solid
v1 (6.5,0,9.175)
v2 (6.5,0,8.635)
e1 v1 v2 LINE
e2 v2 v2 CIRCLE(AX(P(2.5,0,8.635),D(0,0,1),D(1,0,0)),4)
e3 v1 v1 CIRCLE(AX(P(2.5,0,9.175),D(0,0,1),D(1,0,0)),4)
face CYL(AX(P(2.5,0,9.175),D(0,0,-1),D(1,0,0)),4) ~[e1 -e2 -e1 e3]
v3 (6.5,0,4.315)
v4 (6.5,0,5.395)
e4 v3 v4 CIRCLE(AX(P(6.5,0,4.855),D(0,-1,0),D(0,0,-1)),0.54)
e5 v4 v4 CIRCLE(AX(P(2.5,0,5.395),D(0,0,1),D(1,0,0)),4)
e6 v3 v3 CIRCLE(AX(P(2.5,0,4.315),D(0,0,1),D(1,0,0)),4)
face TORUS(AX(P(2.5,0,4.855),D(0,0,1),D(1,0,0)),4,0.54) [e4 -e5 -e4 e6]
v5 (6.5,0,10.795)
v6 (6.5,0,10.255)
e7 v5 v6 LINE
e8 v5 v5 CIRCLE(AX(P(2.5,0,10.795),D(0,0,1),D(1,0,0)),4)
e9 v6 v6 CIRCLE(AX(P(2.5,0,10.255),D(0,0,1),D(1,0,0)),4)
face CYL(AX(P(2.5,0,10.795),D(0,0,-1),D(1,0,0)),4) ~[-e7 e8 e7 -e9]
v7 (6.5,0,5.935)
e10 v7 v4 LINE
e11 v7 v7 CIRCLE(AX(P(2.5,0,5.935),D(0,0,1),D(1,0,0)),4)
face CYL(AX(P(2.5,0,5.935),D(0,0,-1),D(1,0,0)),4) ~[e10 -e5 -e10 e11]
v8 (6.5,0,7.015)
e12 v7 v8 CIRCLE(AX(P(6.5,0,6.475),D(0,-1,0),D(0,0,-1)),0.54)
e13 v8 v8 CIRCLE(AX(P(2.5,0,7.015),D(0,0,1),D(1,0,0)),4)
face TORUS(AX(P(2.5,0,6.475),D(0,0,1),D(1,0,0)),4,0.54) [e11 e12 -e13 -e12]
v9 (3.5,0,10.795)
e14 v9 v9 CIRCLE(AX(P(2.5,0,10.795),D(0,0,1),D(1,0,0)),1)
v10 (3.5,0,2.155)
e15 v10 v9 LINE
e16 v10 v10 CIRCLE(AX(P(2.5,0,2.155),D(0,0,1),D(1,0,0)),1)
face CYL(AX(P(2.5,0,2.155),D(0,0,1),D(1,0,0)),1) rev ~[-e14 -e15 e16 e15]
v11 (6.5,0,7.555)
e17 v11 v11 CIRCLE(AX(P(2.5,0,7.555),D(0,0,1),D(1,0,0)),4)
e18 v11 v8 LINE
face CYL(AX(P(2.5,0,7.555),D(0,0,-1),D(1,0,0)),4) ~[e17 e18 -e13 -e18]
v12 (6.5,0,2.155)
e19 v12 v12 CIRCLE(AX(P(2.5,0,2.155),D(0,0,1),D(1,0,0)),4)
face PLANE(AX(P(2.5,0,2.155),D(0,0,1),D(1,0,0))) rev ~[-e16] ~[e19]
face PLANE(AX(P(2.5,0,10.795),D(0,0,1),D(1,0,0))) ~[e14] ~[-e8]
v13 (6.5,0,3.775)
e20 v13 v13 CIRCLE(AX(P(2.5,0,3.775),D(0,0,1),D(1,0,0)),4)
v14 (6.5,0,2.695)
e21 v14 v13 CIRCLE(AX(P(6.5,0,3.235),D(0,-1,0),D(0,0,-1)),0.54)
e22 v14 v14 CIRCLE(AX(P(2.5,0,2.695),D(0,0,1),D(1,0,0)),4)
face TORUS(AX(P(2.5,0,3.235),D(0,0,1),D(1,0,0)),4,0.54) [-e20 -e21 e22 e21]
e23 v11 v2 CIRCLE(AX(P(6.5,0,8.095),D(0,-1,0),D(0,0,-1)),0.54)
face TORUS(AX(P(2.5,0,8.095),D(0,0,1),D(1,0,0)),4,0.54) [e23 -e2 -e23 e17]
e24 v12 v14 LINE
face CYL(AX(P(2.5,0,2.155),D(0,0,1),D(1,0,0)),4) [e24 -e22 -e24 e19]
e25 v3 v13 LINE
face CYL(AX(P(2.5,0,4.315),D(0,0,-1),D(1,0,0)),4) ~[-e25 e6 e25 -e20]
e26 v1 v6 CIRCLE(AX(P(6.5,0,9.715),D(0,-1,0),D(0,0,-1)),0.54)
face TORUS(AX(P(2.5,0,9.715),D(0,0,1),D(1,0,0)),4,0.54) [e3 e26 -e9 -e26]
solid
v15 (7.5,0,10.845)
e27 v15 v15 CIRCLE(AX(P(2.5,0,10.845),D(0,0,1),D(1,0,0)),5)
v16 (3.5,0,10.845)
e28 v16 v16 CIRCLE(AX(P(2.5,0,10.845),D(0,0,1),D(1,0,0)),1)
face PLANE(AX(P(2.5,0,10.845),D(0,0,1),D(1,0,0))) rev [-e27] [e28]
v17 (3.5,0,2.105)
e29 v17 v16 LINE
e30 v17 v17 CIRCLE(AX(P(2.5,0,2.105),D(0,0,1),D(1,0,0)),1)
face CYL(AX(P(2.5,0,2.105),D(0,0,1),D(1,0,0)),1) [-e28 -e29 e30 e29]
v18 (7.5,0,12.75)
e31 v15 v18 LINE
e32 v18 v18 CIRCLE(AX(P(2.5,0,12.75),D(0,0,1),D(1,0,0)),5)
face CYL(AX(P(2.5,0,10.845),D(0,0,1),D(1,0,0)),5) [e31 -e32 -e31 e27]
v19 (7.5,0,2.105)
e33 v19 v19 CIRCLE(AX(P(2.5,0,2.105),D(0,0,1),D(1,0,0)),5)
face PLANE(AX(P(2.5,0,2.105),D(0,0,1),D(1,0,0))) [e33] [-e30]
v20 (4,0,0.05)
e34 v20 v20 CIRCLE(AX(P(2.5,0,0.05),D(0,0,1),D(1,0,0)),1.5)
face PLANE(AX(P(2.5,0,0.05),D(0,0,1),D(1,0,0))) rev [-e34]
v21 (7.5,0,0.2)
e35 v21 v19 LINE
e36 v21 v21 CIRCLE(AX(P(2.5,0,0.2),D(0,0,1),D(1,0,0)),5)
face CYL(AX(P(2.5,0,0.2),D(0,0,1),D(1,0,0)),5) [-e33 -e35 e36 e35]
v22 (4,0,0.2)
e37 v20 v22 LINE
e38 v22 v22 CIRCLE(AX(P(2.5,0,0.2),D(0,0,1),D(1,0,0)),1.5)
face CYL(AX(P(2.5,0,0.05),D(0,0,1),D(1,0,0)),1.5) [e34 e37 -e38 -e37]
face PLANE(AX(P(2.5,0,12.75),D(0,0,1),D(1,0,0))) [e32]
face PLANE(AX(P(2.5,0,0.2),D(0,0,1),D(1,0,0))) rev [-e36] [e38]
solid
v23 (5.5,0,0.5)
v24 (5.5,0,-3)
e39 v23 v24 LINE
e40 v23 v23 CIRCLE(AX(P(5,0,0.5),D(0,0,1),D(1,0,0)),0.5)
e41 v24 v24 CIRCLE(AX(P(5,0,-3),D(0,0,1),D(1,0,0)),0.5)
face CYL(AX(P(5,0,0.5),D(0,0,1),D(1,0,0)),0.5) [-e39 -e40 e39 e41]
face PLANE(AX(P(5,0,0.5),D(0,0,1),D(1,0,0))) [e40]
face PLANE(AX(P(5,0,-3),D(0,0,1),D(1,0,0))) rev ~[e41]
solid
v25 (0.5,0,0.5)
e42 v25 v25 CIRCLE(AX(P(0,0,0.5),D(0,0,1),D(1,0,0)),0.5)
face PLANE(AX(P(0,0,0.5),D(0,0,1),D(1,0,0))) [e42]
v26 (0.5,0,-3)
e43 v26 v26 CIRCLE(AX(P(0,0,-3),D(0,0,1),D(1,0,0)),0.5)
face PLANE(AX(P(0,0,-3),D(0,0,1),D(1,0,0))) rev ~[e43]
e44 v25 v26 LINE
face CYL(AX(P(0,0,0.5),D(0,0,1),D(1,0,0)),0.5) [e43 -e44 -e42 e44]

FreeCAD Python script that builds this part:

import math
import FreeCAD as App
import Part
import Sketcher

V = App.Vector
Q = App.Units.Quantity


def add_polygon(sketch, points):
    """Adds a closed chain of lines whose ends are joined by coincident constraints."""
    first, n = sketch.GeometryCount, len(points)
    for a, b in zip(points, points[1:] + points[:1]):
        sketch.addGeometry(Part.LineSegment(App.Vector(*a, 0), App.Vector(*b, 0)), False)
    for i in range(n):
        sketch.addConstraint(Sketcher.Constraint("Coincident", first + i, 2, first + (i + 1) % n, 1))

doc = App.newDocument("Part")
params = doc.addObject("Spreadsheet::Sheet", "Params")
for row, (alias, value) in enumerate([
    ("sketch1_diameter", "1 mm"),
    ("pad1_length", "3.5 mm"),
    ("sketch2_width", "4 mm"),
    ("sketch2_width2", "5 mm"),
    ("sketch2_width3", "1.5 mm"),
    ("sketch2_height", "12.7 mm"),
    ("sketch2_height2", "0.15 mm"),
    ("revolution_angle", "360 deg"),
    ("sketch3_width", "3 mm"),
    ("sketch3_radius", "0.54 mm"),
    ("sketch3_height", "0.54 mm"),
    ("revolution2_angle", "360 deg"),
], start=1):
    params.set(f"A{row}", alias)
    params.set(f"B{row}", "=" + value)
    params.setAlias(f"B{row}", alias)

body = doc.addObject("PartDesign::Body", "Body")
body.AllowCompound = True

sketch1 = doc.addObject("Sketcher::SketchObject", "Sketch")
body.addObject(sketch1)
sketch1.AttachmentSupport = (doc.XY_Plane, [""])
sketch1.MapMode = "FlatFace"
sketch1.AttachmentOffset = App.Placement(V(0, 0, 0.5), App.Rotation())
sketch1.addGeometry(Part.Circle(V(0, 0, 0), V(0, 0, 1), 0.5), False)
sketch1.addGeometry(Part.Circle(V(5, 0, 0), V(0, 0, 1), 0.5), False)
sketch1.addConstraint(Sketcher.Constraint("Coincident", 0, 3, -1, 1))
sketch1.addConstraint(Sketcher.Constraint("Equal", 0, 1))
sketch1.addConstraint(Sketcher.Constraint("PointOnObject", 1, 3, -1))
sketch1.addConstraint(Sketcher.Constraint("Diameter", 0, Q("1 mm")))
sketch1.addConstraint(Sketcher.Constraint("DistanceX", -1, 1, 1, 3, Q("5 mm")))
sketch1.setExpression("Constraints[3]", "Params.sketch1_diameter")
pad1 = doc.addObject("PartDesign::Pad", "Pad")
body.addObject(pad1)
pad1.Profile = sketch1
pad1.setExpression("Length", "Params.pad1_length")
pad1.Reversed = True
body2 = doc.addObject("PartDesign::Body", "Body001")

sketch2 = doc.addObject("Sketcher::SketchObject", "Sketch001")
body2.addObject(sketch2)
sketch2.AttachmentSupport = (doc.getObject("XZ_Plane001"), [""])
sketch2.MapMode = "FlatFace"
add_polygon(sketch2, [(2.5, 0.05), (4, 0.05), (4, 0.2), (7.5, 0.2), (7.5, 2.1), (3.5, 2.1), (3.5, 10.85), (7.5, 10.85), (7.5, 12.75), (2.5, 12.75)])
sketch2.addGeometry(Part.LineSegment(V(2.5, 0.05, 0), V(2.5, 12.75, 0)), True)
sketch2.addConstraint(Sketcher.Constraint("Horizontal", 0))
sketch2.addConstraint(Sketcher.Constraint("Vertical", 1))
sketch2.addConstraint(Sketcher.Constraint("Horizontal", 2))
sketch2.addConstraint(Sketcher.Constraint("Vertical", 3))
sketch2.addConstraint(Sketcher.Constraint("Horizontal", 4))
sketch2.addConstraint(Sketcher.Constraint("Vertical", 5))
sketch2.addConstraint(Sketcher.Constraint("Horizontal", 6))
sketch2.addConstraint(Sketcher.Constraint("Vertical", 7))
sketch2.addConstraint(Sketcher.Constraint("Horizontal", 8))
sketch2.addConstraint(Sketcher.Constraint("Vertical", 9))
sketch2.addConstraint(Sketcher.Constraint("Vertical", 10))
sketch2.addConstraint(Sketcher.Constraint("Coincident", 10, 1, 9, 2))
sketch2.addConstraint(Sketcher.Constraint("Horizontal", 7, 2, 10, 2))
sketch2.addConstraint(Sketcher.Constraint("Vertical", 3, 2, 6, 2))
sketch2.addConstraint(Sketcher.Constraint("Equal", 3, 7))
sketch2.addConstraint(Sketcher.Constraint("DistanceX", 4, 2, 4, 1, Q("4 mm")))
sketch2.addConstraint(Sketcher.Constraint("DistanceX", 8, 2, 8, 1, Q("5 mm")))
sketch2.addConstraint(Sketcher.Constraint("DistanceX", 0, 1, 0, 2, Q("1.5 mm")))
sketch2.addConstraint(Sketcher.Constraint("DistanceY", 9, 2, 9, 1, Q("12.7 mm")))
sketch2.addConstraint(Sketcher.Constraint("DistanceX", -1, 1, 0, 2, Q("4 mm")))
sketch2.addConstraint(Sketcher.Constraint("DistanceY", 1, 1, 1, 2, Q("0.15 mm")))
sketch2.addConstraint(Sketcher.Constraint("DistanceY", 5, 1, 5, 2, Q("8.74 mm")))
sketch2.addConstraint(Sketcher.Constraint("DistanceY", -1, 1, 1, 2, Q("0.2 mm")))
sketch2.setExpression("Constraints[25]", "Params.sketch2_width")
sketch2.setExpression("Constraints[26]", "Params.sketch2_width2")
sketch2.setExpression("Constraints[27]", "Params.sketch2_width3")
sketch2.setExpression("Constraints[28]", "Params.sketch2_height")
sketch2.setExpression("Constraints[30]", "Params.sketch2_height2")
revolution = doc.addObject("PartDesign::Revolution", "Revolution")
body2.addObject(revolution)
revolution.Profile = sketch2
revolution.ReferenceAxis = (sketch2, ["Axis0"])
revolution.setExpression("Angle", "Params.revolution_angle")
body3 = doc.addObject("PartDesign::Body", "Body002")

sketch3 = doc.addObject("Sketcher::SketchObject", "Sketch002")
body3.addObject(sketch3)
sketch3.AttachmentSupport = (doc.getObject("XZ_Plane002"), [""])
sketch3.MapMode = "FlatFace"
sketch3.addGeometry(Part.LineSegment(V(3.5, 2.2, 0), V(6.5, 2.2, 0)), False)
sketch3.addGeometry(Part.LineSegment(V(6.5, 2.2, 0), V(6.5, 2.7, 0)), False)
sketch3.addGeometry(Part.ArcOfCircle(Part.Circle(V(6.5, 3.2, 0), V(0, 0, 1), 0.5), math.radians(-90), math.radians(90)), False)
sketch3.addGeometry(Part.LineSegment(V(6.5, 3.8, 0), V(6.5, 4.3, 0)), False)
sketch3.addGeometry(Part.ArcOfCircle(Part.Circle(V(6.5, 4.9, 0), V(0, 0, 1), 0.5), math.radians(-90), math.radians(90)), False)
sketch3.addGeometry(Part.LineSegment(V(6.5, 5.4, 0), V(6.5, 5.9, 0)), False)
sketch3.addGeometry(Part.ArcOfCircle(Part.Circle(V(6.5, 6.5, 0), V(0, 0, 1), 0.5), math.radians(-90), math.radians(90)), False)
sketch3.addGeometry(Part.LineSegment(V(6.5, 7, 0), V(6.5, 7.6, 0)), False)
sketch3.addGeometry(Part.ArcOfCircle(Part.Circle(V(6.5, 8.1, 0), V(0, 0, 1), 0.5), math.radians(-90), math.radians(90)), False)
sketch3.addGeometry(Part.LineSegment(V(6.5, 8.6, 0), V(6.5, 9.2, 0)), False)
sketch3.addGeometry(Part.ArcOfCircle(Part.Circle(V(6.5, 9.7, 0), V(0, 0, 1), 0.5), math.radians(-90), math.radians(90)), False)
sketch3.addGeometry(Part.LineSegment(V(6.5, 10.3, 0), V(6.5, 10.8, 0)), False)
sketch3.addGeometry(Part.LineSegment(V(6.5, 10.8, 0), V(3.5, 10.8, 0)), False)
sketch3.addGeometry(Part.LineSegment(V(3.5, 10.8, 0), V(3.5, 2.2, 0)), False)
sketch3.addGeometry(Part.LineSegment(V(2.5, 2.2, 0), V(2.5, 10.8, 0)), True)
sketch3.addConstraint(Sketcher.Constraint("Coincident", 0, 2, 1, 1))
sketch3.addConstraint(Sketcher.Constraint("Coincident", 1, 2, 2, 1))
sketch3.addConstraint(Sketcher.Constraint("Coincident", 2, 2, 3, 1))
sketch3.addConstraint(Sketcher.Constraint("Coincident", 3, 2, 4, 1))
sketch3.addConstraint(Sketcher.Constraint("Coincident", 4, 2, 5, 1))
sketch3.addConstraint(Sketcher.Constraint("Coincident", 5, 2, 6, 1))
sketch3.addConstraint(Sketcher.Constraint("Coincident", 6, 2, 7, 1))
sketch3.addConstraint(Sketcher.Constraint("Coincident", 7, 2, 8, 1))
sketch3.addConstraint(Sketcher.Constraint("Coincident", 8, 2, 9, 1))
sketch3.addConstraint(Sketcher.Constraint("Coincident", 9, 2, 10, 1))
sketch3.addConstraint(Sketcher.Constraint("Coincident", 10, 2, 11, 1))
sketch3.addConstraint(Sketcher.Constraint("Coincident", 11, 2, 12, 1))
sketch3.addConstraint(Sketcher.Constraint("Coincident", 12, 2, 13, 1))
sketch3.addConstraint(Sketcher.Constraint("Coincident", 13, 2, 0, 1))
sketch3.addConstraint(Sketcher.Constraint("Horizontal", 0))
sketch3.addConstraint(Sketcher.Constraint("Vertical", 1))
sketch3.addConstraint(Sketcher.Constraint("Vertical", 3))
sketch3.addConstraint(Sketcher.Constraint("Vertical", 5))
sketch3.addConstraint(Sketcher.Constraint("Vertical", 7))
sketch3.addConstraint(Sketcher.Constraint("Vertical", 9))
sketch3.addConstraint(Sketcher.Constraint("Vertical", 11))
sketch3.addConstraint(Sketcher.Constraint("Horizontal", 12))
sketch3.addConstraint(Sketcher.Constraint("Vertical", 13))
sketch3.addConstraint(Sketcher.Constraint("Vertical", 14))
sketch3.addConstraint(Sketcher.Constraint("Equal", 2, 4))
sketch3.addConstraint(Sketcher.Constraint("Equal", 4, 6))
sketch3.addConstraint(Sketcher.Constraint("Equal", 6, 8))
sketch3.addConstraint(Sketcher.Constraint("Equal", 8, 10))
sketch3.addConstraint(Sketcher.Constraint("Horizontal", 13, 2, 14, 1))
sketch3.addConstraint(Sketcher.Constraint("Horizontal", 12, 2, 14, 2))
sketch3.addConstraint(Sketcher.Constraint("Vertical", 2, 3, 4, 3))
sketch3.addConstraint(Sketcher.Constraint("Vertical", 4, 3, 6, 3))
sketch3.addConstraint(Sketcher.Constraint("Vertical", 6, 3, 8, 3))
sketch3.addConstraint(Sketcher.Constraint("Vertical", 8, 3, 10, 3))
sketch3.addConstraint(Sketcher.Constraint("Vertical", 10, 3, 0, 2))
sketch3.addConstraint(Sketcher.Constraint("Vertical", 1, 2, 2, 2))
sketch3.addConstraint(Sketcher.Constraint("Vertical", 3, 2, 4, 2))
sketch3.addConstraint(Sketcher.Constraint("Vertical", 5, 2, 6, 2))
sketch3.addConstraint(Sketcher.Constraint("Vertical", 7, 2, 8, 2))
sketch3.addConstraint(Sketcher.Constraint("Vertical", 9, 2, 10, 2))
sketch3.addConstraint(Sketcher.Constraint("Equal", 1, 3))
sketch3.addConstraint(Sketcher.Constraint("Equal", 3, 5))
sketch3.addConstraint(Sketcher.Constraint("Equal", 5, 7))
sketch3.addConstraint(Sketcher.Constraint("Equal", 7, 9))
sketch3.addConstraint(Sketcher.Constraint("Equal", 9, 11))
sketch3.addConstraint(Sketcher.Constraint("DistanceX", 0, 1, 0, 2, Q("3 mm")))
sketch3.addConstraint(Sketcher.Constraint("Radius", 2, Q("0.54 mm")))
sketch3.addConstraint(Sketcher.Constraint("DistanceX", 14, 1, 13, 2, Q("1 mm")))
sketch3.addConstraint(Sketcher.Constraint("DistanceY", 1, 1, 1, 2, Q("0.54 mm")))
sketch3.addConstraint(Sketcher.Constraint("DistanceX", -1, 1, 2, 3, Q("6.5 mm")))
sketch3.addConstraint(Sketcher.Constraint("DistanceY", -1, 1, 2, 3, Q("3.235 mm")))
sketch3.setExpression("Constraints[45]", "Params.sketch3_width")
sketch3.setExpression("Constraints[46]", "Params.sketch3_radius")
sketch3.setExpression("Constraints[48]", "Params.sketch3_height")
revolution2 = doc.addObject("PartDesign::Revolution", "Revolution001")
body3.addObject(revolution2)
revolution2.Profile = sketch3
revolution2.ReferenceAxis = (sketch3, ["Axis0"])
revolution2.setExpression("Angle", "Params.revolution2_angle")

doc.recompute()
